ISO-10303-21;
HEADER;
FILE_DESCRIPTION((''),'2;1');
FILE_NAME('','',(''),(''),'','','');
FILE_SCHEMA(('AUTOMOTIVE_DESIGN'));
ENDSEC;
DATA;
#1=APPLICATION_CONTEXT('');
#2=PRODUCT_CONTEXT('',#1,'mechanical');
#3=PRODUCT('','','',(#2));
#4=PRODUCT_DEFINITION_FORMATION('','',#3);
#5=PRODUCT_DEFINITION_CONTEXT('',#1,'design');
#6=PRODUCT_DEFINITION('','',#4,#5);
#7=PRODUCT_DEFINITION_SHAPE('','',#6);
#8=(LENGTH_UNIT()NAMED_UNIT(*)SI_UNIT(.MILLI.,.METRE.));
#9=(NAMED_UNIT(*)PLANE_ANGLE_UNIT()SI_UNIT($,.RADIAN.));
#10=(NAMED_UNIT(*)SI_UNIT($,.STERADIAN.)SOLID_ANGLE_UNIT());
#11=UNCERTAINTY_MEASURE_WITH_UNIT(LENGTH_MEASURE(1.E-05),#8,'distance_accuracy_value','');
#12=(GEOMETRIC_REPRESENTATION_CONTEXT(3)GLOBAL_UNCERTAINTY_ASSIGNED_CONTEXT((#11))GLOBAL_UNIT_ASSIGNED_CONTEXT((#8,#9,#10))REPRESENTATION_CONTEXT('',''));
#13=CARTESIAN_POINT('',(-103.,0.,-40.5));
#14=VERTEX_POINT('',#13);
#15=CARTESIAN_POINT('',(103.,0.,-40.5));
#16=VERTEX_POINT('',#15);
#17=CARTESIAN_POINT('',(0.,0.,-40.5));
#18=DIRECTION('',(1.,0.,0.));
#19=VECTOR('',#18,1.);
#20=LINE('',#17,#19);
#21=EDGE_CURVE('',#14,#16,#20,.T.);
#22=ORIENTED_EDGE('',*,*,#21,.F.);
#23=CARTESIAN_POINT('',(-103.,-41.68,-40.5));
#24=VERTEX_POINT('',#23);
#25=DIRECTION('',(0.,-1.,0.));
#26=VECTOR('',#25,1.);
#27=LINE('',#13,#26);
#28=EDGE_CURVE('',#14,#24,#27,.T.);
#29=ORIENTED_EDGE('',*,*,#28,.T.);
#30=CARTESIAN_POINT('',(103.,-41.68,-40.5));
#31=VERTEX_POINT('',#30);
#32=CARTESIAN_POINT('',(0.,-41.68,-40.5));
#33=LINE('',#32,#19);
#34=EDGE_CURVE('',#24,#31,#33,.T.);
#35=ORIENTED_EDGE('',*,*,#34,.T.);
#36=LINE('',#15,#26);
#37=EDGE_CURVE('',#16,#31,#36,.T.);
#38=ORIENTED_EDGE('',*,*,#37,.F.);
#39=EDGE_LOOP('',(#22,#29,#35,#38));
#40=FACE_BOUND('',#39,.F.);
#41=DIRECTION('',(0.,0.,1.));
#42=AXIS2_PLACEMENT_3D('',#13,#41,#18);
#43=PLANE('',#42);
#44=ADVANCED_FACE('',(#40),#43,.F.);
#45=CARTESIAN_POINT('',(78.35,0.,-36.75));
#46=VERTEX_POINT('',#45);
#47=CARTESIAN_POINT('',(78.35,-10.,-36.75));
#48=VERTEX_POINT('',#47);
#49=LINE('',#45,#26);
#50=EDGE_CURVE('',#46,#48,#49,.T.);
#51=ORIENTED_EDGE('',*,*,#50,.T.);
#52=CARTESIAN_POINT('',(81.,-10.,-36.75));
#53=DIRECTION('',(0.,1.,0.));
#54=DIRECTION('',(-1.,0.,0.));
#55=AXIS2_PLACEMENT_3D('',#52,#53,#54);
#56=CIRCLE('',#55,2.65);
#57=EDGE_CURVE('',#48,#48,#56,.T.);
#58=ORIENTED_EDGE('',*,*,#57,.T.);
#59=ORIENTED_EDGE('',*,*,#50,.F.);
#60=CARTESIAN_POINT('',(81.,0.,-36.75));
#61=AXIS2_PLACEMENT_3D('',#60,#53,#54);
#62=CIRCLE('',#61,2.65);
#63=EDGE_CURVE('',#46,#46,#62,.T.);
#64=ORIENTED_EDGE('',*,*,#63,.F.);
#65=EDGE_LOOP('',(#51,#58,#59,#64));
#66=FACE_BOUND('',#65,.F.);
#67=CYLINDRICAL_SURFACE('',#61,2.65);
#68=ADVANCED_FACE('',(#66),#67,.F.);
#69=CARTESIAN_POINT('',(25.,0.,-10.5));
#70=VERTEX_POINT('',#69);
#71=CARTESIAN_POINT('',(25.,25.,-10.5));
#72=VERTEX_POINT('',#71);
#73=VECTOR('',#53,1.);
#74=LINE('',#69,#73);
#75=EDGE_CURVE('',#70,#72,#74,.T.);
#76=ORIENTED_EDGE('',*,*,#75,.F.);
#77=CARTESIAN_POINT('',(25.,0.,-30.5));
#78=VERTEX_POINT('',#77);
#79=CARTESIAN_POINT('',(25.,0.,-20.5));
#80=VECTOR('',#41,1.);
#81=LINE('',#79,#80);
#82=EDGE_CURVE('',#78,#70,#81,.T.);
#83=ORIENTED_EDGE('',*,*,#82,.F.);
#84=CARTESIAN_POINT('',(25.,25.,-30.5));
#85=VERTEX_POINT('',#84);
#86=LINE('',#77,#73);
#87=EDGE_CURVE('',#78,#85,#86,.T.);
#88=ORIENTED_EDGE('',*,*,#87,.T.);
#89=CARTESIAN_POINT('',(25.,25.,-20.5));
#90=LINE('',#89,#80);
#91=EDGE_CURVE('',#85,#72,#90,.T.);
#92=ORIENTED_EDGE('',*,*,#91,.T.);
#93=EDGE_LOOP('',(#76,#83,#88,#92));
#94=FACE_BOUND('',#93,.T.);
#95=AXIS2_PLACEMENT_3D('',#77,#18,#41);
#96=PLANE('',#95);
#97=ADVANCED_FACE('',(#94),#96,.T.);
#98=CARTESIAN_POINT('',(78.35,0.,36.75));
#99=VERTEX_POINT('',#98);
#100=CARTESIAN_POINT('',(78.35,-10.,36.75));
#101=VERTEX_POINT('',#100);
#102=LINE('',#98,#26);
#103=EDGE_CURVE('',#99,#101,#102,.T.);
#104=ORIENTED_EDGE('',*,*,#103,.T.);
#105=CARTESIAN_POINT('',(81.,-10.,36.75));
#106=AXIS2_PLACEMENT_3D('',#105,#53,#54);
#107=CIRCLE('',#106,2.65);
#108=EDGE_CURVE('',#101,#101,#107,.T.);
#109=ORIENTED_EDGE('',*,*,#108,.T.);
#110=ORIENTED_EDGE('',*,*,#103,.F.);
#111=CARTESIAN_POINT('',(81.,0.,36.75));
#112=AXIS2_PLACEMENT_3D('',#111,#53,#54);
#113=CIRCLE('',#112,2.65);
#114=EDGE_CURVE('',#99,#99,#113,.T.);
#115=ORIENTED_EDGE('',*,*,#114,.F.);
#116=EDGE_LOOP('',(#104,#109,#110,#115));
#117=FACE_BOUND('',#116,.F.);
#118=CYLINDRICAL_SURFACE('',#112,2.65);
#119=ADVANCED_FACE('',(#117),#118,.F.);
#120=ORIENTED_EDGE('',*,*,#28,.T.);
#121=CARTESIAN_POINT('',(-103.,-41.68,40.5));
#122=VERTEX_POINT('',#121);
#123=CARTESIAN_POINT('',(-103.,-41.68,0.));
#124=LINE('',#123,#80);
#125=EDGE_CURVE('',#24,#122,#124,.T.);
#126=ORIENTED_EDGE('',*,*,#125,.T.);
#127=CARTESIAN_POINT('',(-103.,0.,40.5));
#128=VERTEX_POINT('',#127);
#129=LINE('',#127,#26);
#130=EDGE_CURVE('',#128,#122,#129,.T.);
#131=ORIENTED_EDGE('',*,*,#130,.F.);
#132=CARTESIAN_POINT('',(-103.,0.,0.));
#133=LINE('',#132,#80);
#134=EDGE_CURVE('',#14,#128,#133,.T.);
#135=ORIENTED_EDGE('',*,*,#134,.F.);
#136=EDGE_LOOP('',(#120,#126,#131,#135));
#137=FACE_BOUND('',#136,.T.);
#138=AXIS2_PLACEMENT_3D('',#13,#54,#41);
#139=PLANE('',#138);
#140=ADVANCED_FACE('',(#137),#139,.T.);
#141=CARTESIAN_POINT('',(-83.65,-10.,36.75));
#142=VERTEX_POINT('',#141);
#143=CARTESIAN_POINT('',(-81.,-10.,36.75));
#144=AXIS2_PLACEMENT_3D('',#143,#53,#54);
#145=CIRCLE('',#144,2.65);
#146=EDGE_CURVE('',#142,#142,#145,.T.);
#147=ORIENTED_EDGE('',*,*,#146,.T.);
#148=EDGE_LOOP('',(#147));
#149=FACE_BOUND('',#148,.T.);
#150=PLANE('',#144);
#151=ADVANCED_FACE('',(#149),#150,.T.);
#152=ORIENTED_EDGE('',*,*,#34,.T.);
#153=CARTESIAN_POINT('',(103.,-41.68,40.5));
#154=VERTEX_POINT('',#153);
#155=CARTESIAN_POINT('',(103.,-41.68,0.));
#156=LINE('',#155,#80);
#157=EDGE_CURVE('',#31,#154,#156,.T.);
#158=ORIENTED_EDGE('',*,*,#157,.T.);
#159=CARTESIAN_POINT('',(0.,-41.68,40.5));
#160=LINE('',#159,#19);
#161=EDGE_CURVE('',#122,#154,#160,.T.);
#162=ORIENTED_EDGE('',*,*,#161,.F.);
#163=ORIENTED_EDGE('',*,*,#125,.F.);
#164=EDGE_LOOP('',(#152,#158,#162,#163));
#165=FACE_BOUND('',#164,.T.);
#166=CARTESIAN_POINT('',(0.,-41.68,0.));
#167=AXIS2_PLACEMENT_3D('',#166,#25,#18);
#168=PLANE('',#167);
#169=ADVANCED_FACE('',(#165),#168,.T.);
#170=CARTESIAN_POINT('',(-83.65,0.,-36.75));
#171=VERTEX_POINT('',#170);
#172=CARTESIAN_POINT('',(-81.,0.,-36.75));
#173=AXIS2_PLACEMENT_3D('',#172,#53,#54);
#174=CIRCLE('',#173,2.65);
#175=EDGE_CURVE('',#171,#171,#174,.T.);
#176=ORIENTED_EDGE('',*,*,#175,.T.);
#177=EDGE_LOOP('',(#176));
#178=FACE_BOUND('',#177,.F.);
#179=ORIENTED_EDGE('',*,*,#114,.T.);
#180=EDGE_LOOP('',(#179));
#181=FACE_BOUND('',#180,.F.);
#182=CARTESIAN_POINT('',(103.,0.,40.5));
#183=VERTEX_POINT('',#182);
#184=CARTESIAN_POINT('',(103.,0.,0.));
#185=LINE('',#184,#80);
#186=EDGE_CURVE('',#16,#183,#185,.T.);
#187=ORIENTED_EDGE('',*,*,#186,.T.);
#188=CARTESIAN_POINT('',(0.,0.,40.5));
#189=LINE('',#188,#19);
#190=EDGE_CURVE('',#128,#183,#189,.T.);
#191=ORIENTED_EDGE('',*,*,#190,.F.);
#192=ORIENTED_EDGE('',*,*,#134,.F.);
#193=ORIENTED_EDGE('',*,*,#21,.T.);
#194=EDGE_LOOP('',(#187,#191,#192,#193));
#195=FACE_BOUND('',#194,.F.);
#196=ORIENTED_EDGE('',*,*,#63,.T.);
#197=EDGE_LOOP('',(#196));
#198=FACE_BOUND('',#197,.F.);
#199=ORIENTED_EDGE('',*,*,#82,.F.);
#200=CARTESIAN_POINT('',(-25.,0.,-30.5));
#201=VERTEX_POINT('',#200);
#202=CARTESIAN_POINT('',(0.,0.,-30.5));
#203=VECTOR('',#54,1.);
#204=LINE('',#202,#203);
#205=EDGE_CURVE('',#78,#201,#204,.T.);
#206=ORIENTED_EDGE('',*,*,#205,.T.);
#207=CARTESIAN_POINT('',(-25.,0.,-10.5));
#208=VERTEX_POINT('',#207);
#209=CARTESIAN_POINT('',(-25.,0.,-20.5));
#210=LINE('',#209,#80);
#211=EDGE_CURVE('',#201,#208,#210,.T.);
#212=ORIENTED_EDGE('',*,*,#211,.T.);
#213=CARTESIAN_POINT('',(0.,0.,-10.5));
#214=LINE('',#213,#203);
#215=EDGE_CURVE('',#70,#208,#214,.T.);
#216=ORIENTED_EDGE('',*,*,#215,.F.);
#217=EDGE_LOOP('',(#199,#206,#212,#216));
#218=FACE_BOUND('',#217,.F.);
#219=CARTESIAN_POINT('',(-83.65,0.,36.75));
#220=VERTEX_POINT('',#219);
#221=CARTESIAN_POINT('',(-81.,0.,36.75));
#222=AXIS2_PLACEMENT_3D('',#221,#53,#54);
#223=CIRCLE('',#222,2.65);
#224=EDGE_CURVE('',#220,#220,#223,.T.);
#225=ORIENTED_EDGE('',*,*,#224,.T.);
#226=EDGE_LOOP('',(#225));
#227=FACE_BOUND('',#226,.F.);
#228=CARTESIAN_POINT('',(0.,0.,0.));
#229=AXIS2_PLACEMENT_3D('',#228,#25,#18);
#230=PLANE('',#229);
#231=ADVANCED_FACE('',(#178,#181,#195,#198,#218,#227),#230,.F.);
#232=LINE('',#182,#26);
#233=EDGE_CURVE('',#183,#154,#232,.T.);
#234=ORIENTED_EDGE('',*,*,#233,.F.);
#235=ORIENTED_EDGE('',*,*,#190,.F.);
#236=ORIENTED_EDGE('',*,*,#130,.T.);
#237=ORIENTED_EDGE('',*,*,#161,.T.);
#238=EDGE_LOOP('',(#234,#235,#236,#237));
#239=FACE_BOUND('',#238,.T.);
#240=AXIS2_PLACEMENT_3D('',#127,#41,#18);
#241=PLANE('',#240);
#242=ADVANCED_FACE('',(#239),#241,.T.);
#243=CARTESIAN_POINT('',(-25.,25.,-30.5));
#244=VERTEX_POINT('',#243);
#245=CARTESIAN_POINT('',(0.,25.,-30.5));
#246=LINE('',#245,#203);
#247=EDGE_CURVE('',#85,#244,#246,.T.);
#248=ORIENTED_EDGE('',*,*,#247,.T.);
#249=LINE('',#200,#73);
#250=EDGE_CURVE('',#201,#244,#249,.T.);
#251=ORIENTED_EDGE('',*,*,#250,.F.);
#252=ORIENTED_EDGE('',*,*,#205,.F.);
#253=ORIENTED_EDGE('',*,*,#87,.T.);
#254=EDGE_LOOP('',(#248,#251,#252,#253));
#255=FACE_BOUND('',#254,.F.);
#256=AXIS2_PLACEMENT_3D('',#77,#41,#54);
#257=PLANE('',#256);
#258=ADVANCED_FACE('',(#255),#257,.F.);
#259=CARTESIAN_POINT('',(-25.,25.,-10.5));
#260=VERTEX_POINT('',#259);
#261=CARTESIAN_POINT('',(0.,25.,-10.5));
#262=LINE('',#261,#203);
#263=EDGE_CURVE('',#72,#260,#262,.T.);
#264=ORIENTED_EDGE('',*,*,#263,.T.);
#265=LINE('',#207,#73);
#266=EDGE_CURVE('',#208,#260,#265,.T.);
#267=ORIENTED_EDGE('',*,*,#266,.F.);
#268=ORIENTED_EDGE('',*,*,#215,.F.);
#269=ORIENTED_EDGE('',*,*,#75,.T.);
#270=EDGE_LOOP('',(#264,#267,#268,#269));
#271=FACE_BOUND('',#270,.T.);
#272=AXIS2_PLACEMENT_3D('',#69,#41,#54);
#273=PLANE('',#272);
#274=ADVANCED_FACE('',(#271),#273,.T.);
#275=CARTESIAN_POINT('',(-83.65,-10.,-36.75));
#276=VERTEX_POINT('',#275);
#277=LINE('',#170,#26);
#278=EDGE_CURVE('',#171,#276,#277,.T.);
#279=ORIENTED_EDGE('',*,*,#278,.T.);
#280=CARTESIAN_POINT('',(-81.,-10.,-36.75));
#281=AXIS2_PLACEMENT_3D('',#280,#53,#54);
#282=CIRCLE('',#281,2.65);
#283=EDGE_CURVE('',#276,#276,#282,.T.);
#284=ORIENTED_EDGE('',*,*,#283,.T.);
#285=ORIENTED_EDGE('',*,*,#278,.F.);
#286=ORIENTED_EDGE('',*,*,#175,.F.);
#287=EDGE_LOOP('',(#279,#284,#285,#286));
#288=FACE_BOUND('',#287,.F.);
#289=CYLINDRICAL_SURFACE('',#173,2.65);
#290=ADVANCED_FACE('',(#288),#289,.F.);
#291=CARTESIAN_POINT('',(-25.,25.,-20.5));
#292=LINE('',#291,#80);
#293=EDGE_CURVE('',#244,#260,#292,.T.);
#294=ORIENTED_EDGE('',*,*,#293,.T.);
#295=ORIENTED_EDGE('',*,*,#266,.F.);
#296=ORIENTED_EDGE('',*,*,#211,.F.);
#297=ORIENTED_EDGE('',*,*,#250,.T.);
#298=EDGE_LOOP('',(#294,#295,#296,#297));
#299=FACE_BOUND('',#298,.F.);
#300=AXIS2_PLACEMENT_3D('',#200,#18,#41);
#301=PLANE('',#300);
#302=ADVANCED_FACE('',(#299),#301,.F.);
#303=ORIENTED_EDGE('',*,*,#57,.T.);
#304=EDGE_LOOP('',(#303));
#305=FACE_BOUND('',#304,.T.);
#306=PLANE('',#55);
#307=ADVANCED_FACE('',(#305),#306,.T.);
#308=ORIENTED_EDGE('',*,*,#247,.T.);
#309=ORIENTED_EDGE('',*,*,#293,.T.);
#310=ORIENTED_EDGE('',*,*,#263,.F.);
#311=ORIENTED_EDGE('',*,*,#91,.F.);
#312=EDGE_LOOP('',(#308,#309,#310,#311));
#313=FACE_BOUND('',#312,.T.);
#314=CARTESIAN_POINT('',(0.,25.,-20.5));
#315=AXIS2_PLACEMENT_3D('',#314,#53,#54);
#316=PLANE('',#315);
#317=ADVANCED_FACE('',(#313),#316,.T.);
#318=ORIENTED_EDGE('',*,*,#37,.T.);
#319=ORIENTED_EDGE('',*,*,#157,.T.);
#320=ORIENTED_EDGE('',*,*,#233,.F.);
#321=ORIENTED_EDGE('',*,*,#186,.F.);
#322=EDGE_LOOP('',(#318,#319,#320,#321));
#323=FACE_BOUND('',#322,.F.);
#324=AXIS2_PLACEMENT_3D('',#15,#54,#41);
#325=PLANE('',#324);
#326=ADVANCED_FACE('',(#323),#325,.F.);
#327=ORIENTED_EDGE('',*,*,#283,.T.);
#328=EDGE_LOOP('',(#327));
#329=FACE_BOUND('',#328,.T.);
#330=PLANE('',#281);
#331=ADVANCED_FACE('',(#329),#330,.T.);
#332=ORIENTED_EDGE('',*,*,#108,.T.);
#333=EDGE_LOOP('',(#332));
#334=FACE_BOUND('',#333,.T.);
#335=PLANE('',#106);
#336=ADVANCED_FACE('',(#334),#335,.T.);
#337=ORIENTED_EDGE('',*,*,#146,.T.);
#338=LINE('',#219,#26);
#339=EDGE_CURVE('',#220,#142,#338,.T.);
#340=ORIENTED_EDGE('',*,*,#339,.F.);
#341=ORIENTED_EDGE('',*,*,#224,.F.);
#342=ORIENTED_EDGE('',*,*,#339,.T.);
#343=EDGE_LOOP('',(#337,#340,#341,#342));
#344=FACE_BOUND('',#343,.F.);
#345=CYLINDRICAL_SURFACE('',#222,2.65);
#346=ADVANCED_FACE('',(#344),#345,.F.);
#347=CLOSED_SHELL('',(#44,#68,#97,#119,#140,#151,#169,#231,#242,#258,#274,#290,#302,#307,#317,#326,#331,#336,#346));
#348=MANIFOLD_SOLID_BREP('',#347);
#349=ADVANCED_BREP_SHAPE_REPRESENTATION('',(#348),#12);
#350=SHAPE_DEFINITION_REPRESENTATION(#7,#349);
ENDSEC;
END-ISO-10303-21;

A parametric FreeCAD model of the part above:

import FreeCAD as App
import Part
import Sketcher

V = App.Vector
Q = App.Units.Quantity

doc = App.newDocument("Part")
body = doc.addObject("PartDesign::Body", "Body")

# Sketch on XZ plane
sketch1 = doc.addObject("Sketcher::SketchObject", "Sketch")
body.addObject(sketch1)
sketch1.AttachmentSupport = (doc.XZ_Plane, [""])
sketch1.MapMode = "FlatFace"
sketch1.addGeometry(Part.LineSegment(V(-103, 40, 0), V(-103, -40, 0)), False)
sketch1.addGeometry(Part.LineSegment(V(-103, -40, 0), V(103, -40, 0)), False)
sketch1.addGeometry(Part.LineSegment(V(103, -40, 0), V(103, 40, 0)), False)
sketch1.addGeometry(Part.LineSegment(V(103, 40, 0), V(-103, 40, 0)), False)
sketch1.addConstraint(Sketcher.Constraint("Coincident", 0, 2, 1, 1))
sketch1.addConstraint(Sketcher.Constraint("Coincident", 1, 2, 2, 1))
sketch1.addConstraint(Sketcher.Constraint("Coincident", 2, 2, 3, 1))
sketch1.addConstraint(Sketcher.Constraint("Coincident", 3, 2, 0, 1))
sketch1.addConstraint(Sketcher.Constraint("Vertical", 0))
sketch1.addConstraint(Sketcher.Constraint("Horizontal", 1))
sketch1.addConstraint(Sketcher.Constraint("Vertical", 2))
sketch1.addConstraint(Sketcher.Constraint("Horizontal", 3))
sketch1.addConstraint(Sketcher.Constraint("Symmetric", 0, 2, 2, 2, -1, 1))
sketch1.addConstraint(Sketcher.Constraint("DistanceX", 1, 1, 1, 2, Q("206 mm")))
sketch1.addConstraint(Sketcher.Constraint("DistanceY", 0, 2, 0, 1, Q("81 mm")))
pad1 = doc.addObject("PartDesign::Pad", "Pad")
body.addObject(pad1)
pad1.Profile = sketch1
pad1.Length = 41.68

# Sketch on XZ plane
sketch2 = doc.addObject("Sketcher::SketchObject", "Sketch001")
body.addObject(sketch2)
sketch2.AttachmentSupport = (doc.XZ_Plane, [""])
sketch2.MapMode = "FlatFace"
sketch2.addGeometry(Part.Circle(V(81, 36.8, 0), V(0, 0, 1), 2.6), False)
sketch2.addGeometry(Part.Circle(V(81, -36.8, 0), V(0, 0, 1), 2.6), False)
sketch2.addGeometry(Part.Circle(V(-81, -36.8, 0), V(0, 0, 1), 2.6), False)
sketch2.addGeometry(Part.Circle(V(-81, 36.8, 0), V(0, 0, 1), 2.6), False)
sketch2.addConstraint(Sketcher.Constraint("Equal", 0, 1))
sketch2.addConstraint(Sketcher.Constraint("Equal", 1, 2))
sketch2.addConstraint(Sketcher.Constraint("Equal", 2, 3))
sketch2.addConstraint(Sketcher.Constraint("Symmetric", 0, 3, 2, 3, -1, 1))
sketch2.addConstraint(Sketcher.Constraint("Symmetric", 1, 3, 3, 3, -1, 1))
sketch2.addConstraint(Sketcher.Constraint("Symmetric", 1, 3, 2, 3, -2))
sketch2.addConstraint(Sketcher.Constraint("Diameter", 0, Q("5.3 mm")))
sketch2.addConstraint(Sketcher.Constraint("DistanceX", -1, 1, 0, 3, Q("81 mm")))
sketch2.addConstraint(Sketcher.Constraint("DistanceY", 1, 3, 0, 3, Q("73.5 mm")))
pocket1 = doc.addObject("PartDesign::Pocket", "Pocket")
body.addObject(pocket1)
pocket1.Profile = sketch2
pocket1.Length = 10
pocket1.Reversed = True

# Sketch on XZ plane
sketch3 = doc.addObject("Sketcher::SketchObject", "Sketch002")
body.addObject(sketch3)
sketch3.AttachmentSupport = (doc.XZ_Plane, [""])
sketch3.MapMode = "FlatFace"
sketch3.addGeometry(Part.LineSegment(V(25, -10, 0), V(25, -30, 0)), False)
sketch3.addGeometry(Part.LineSegment(V(25, -30, 0), V(-25, -30, 0)), False)
sketch3.addGeometry(Part.LineSegment(V(-25, -30, 0), V(-25, -10, 0)), False)
sketch3.addGeometry(Part.LineSegment(V(-25, -10, 0), V(25, -10, 0)), False)
sketch3.addConstraint(Sketcher.Constraint("Coincident", 0, 2, 1, 1))
sketch3.addConstraint(Sketcher.Constraint("Coincident", 1, 2, 2, 1))
sketch3.addConstraint(Sketcher.Constraint("Coincident", 2, 2, 3, 1))
sketch3.addConstraint(Sketcher.Constraint("Coincident", 3, 2, 0, 1))
sketch3.addConstraint(Sketcher.Constraint("Vertical", 0))
sketch3.addConstraint(Sketcher.Constraint("Horizontal", 1))
sketch3.addConstraint(Sketcher.Constraint("Vertical", 2))
sketch3.addConstraint(Sketcher.Constraint("Horizontal", 3))
sketch3.addConstraint(Sketcher.Constraint("DistanceX", 1, 2, 1, 1, Q("50 mm")))
sketch3.addConstraint(Sketcher.Constraint("DistanceY", 0, 2, 0, 1, Q("20 mm")))
sketch3.addConstraint(Sketcher.Constraint("DistanceX", -1, 1, 0, 2, Q("25 mm")))
sketch3.addConstraint(Sketcher.Constraint("DistanceY", 0, 2, -1, 1, Q("30.5 mm")))
pad2 = doc.addObject("PartDesign::Pad", "Pad001")
body.addObject(pad2)
pad2.Profile = sketch3
pad2.Length = 25
pad2.Reversed = True

doc.recompute()
